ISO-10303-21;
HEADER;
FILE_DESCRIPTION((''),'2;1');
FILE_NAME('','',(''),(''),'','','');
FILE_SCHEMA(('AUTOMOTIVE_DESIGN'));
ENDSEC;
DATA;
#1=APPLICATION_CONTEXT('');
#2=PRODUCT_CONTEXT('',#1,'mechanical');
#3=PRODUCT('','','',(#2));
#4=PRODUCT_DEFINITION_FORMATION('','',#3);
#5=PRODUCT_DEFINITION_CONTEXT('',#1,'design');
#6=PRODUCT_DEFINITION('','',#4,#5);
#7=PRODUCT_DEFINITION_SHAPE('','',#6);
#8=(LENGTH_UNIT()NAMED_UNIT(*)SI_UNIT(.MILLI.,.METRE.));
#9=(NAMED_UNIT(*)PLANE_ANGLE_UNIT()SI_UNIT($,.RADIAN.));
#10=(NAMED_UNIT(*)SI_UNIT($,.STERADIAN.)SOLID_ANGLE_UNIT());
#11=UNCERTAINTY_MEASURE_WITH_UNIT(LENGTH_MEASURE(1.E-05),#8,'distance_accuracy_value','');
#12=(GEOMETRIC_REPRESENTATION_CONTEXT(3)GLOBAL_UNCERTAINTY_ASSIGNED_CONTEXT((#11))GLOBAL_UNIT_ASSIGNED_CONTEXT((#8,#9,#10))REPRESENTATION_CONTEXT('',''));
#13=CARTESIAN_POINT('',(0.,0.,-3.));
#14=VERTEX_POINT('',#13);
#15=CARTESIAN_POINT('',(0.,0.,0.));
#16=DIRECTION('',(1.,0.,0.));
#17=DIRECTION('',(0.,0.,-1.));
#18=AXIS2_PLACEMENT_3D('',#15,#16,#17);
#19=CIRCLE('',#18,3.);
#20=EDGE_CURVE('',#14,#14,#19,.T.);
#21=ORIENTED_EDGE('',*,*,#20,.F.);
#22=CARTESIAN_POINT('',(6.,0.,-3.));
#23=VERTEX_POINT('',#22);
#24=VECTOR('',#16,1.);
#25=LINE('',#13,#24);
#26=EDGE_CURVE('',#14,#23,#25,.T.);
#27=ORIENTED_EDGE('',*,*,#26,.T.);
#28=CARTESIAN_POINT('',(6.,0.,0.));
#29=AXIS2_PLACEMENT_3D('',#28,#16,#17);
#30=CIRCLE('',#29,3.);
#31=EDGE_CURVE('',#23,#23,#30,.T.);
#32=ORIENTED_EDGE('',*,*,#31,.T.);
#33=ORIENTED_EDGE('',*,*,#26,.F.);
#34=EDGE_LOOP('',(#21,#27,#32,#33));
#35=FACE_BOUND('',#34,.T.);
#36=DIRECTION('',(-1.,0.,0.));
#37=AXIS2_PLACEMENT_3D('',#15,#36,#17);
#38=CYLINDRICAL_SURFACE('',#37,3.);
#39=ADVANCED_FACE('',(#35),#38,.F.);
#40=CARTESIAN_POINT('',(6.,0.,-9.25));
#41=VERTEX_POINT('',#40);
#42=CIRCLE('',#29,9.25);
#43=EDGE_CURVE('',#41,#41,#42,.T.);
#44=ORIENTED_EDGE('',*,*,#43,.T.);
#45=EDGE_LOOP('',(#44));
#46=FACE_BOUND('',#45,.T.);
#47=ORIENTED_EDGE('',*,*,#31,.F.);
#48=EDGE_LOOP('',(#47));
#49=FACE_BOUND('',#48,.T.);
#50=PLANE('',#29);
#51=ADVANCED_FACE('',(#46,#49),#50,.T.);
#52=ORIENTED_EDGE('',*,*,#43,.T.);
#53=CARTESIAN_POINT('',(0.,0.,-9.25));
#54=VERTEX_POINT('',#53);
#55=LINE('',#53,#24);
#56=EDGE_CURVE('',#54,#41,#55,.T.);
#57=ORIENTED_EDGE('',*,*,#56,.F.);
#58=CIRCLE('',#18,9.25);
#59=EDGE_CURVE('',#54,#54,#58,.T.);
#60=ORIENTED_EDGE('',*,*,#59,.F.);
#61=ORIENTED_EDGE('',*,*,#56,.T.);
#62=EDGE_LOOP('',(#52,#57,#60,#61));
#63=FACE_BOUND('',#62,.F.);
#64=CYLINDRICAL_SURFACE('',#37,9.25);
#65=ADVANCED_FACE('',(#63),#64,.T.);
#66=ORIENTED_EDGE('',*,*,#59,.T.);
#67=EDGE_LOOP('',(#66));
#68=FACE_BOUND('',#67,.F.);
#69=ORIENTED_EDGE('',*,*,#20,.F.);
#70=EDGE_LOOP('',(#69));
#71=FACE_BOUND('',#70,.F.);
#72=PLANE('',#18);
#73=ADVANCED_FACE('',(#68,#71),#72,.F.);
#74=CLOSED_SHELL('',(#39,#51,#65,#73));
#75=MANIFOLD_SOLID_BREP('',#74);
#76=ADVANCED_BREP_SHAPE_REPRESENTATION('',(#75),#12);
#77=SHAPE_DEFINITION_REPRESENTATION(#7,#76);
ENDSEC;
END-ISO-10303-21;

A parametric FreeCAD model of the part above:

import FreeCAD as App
import Part
import Sketcher
from FreeCAD import Vector
Q = App.Units.Quantity

doc = App.newDocument("Part")
body = doc.addObject("PartDesign::Body", "Body")

# Sketch on YZ plane
sketch1 = body.newObject("Sketcher::SketchObject", "Sketch")
sketch1.AttachmentSupport = (doc.getObject("YZ_Plane"), [""])
sketch1.MapMode = "FlatFace"
sketch1.addGeometry([
    Part.Circle(Vector(0, 0, 0), Vector(0, 0, 1), 9.2),
    Part.Circle(Vector(0, 0, 0), Vector(0, 0, 1), 3),
], False)
sketch1.addConstraint([
    Sketcher.Constraint("Coincident", 0, 3, -1, 1),
    Sketcher.Constraint("Coincident", 1, 3, -1, 1),
    Sketcher.Constraint("Diameter", 1, Q("6 mm")),
    Sketcher.Constraint("Diameter", 0, Q("18.5 mm")),
])
pad1 = body.newObject("PartDesign::Pad", "Pad")
pad1.Profile = sketch1
pad1.Length = 6

doc.recompute()
